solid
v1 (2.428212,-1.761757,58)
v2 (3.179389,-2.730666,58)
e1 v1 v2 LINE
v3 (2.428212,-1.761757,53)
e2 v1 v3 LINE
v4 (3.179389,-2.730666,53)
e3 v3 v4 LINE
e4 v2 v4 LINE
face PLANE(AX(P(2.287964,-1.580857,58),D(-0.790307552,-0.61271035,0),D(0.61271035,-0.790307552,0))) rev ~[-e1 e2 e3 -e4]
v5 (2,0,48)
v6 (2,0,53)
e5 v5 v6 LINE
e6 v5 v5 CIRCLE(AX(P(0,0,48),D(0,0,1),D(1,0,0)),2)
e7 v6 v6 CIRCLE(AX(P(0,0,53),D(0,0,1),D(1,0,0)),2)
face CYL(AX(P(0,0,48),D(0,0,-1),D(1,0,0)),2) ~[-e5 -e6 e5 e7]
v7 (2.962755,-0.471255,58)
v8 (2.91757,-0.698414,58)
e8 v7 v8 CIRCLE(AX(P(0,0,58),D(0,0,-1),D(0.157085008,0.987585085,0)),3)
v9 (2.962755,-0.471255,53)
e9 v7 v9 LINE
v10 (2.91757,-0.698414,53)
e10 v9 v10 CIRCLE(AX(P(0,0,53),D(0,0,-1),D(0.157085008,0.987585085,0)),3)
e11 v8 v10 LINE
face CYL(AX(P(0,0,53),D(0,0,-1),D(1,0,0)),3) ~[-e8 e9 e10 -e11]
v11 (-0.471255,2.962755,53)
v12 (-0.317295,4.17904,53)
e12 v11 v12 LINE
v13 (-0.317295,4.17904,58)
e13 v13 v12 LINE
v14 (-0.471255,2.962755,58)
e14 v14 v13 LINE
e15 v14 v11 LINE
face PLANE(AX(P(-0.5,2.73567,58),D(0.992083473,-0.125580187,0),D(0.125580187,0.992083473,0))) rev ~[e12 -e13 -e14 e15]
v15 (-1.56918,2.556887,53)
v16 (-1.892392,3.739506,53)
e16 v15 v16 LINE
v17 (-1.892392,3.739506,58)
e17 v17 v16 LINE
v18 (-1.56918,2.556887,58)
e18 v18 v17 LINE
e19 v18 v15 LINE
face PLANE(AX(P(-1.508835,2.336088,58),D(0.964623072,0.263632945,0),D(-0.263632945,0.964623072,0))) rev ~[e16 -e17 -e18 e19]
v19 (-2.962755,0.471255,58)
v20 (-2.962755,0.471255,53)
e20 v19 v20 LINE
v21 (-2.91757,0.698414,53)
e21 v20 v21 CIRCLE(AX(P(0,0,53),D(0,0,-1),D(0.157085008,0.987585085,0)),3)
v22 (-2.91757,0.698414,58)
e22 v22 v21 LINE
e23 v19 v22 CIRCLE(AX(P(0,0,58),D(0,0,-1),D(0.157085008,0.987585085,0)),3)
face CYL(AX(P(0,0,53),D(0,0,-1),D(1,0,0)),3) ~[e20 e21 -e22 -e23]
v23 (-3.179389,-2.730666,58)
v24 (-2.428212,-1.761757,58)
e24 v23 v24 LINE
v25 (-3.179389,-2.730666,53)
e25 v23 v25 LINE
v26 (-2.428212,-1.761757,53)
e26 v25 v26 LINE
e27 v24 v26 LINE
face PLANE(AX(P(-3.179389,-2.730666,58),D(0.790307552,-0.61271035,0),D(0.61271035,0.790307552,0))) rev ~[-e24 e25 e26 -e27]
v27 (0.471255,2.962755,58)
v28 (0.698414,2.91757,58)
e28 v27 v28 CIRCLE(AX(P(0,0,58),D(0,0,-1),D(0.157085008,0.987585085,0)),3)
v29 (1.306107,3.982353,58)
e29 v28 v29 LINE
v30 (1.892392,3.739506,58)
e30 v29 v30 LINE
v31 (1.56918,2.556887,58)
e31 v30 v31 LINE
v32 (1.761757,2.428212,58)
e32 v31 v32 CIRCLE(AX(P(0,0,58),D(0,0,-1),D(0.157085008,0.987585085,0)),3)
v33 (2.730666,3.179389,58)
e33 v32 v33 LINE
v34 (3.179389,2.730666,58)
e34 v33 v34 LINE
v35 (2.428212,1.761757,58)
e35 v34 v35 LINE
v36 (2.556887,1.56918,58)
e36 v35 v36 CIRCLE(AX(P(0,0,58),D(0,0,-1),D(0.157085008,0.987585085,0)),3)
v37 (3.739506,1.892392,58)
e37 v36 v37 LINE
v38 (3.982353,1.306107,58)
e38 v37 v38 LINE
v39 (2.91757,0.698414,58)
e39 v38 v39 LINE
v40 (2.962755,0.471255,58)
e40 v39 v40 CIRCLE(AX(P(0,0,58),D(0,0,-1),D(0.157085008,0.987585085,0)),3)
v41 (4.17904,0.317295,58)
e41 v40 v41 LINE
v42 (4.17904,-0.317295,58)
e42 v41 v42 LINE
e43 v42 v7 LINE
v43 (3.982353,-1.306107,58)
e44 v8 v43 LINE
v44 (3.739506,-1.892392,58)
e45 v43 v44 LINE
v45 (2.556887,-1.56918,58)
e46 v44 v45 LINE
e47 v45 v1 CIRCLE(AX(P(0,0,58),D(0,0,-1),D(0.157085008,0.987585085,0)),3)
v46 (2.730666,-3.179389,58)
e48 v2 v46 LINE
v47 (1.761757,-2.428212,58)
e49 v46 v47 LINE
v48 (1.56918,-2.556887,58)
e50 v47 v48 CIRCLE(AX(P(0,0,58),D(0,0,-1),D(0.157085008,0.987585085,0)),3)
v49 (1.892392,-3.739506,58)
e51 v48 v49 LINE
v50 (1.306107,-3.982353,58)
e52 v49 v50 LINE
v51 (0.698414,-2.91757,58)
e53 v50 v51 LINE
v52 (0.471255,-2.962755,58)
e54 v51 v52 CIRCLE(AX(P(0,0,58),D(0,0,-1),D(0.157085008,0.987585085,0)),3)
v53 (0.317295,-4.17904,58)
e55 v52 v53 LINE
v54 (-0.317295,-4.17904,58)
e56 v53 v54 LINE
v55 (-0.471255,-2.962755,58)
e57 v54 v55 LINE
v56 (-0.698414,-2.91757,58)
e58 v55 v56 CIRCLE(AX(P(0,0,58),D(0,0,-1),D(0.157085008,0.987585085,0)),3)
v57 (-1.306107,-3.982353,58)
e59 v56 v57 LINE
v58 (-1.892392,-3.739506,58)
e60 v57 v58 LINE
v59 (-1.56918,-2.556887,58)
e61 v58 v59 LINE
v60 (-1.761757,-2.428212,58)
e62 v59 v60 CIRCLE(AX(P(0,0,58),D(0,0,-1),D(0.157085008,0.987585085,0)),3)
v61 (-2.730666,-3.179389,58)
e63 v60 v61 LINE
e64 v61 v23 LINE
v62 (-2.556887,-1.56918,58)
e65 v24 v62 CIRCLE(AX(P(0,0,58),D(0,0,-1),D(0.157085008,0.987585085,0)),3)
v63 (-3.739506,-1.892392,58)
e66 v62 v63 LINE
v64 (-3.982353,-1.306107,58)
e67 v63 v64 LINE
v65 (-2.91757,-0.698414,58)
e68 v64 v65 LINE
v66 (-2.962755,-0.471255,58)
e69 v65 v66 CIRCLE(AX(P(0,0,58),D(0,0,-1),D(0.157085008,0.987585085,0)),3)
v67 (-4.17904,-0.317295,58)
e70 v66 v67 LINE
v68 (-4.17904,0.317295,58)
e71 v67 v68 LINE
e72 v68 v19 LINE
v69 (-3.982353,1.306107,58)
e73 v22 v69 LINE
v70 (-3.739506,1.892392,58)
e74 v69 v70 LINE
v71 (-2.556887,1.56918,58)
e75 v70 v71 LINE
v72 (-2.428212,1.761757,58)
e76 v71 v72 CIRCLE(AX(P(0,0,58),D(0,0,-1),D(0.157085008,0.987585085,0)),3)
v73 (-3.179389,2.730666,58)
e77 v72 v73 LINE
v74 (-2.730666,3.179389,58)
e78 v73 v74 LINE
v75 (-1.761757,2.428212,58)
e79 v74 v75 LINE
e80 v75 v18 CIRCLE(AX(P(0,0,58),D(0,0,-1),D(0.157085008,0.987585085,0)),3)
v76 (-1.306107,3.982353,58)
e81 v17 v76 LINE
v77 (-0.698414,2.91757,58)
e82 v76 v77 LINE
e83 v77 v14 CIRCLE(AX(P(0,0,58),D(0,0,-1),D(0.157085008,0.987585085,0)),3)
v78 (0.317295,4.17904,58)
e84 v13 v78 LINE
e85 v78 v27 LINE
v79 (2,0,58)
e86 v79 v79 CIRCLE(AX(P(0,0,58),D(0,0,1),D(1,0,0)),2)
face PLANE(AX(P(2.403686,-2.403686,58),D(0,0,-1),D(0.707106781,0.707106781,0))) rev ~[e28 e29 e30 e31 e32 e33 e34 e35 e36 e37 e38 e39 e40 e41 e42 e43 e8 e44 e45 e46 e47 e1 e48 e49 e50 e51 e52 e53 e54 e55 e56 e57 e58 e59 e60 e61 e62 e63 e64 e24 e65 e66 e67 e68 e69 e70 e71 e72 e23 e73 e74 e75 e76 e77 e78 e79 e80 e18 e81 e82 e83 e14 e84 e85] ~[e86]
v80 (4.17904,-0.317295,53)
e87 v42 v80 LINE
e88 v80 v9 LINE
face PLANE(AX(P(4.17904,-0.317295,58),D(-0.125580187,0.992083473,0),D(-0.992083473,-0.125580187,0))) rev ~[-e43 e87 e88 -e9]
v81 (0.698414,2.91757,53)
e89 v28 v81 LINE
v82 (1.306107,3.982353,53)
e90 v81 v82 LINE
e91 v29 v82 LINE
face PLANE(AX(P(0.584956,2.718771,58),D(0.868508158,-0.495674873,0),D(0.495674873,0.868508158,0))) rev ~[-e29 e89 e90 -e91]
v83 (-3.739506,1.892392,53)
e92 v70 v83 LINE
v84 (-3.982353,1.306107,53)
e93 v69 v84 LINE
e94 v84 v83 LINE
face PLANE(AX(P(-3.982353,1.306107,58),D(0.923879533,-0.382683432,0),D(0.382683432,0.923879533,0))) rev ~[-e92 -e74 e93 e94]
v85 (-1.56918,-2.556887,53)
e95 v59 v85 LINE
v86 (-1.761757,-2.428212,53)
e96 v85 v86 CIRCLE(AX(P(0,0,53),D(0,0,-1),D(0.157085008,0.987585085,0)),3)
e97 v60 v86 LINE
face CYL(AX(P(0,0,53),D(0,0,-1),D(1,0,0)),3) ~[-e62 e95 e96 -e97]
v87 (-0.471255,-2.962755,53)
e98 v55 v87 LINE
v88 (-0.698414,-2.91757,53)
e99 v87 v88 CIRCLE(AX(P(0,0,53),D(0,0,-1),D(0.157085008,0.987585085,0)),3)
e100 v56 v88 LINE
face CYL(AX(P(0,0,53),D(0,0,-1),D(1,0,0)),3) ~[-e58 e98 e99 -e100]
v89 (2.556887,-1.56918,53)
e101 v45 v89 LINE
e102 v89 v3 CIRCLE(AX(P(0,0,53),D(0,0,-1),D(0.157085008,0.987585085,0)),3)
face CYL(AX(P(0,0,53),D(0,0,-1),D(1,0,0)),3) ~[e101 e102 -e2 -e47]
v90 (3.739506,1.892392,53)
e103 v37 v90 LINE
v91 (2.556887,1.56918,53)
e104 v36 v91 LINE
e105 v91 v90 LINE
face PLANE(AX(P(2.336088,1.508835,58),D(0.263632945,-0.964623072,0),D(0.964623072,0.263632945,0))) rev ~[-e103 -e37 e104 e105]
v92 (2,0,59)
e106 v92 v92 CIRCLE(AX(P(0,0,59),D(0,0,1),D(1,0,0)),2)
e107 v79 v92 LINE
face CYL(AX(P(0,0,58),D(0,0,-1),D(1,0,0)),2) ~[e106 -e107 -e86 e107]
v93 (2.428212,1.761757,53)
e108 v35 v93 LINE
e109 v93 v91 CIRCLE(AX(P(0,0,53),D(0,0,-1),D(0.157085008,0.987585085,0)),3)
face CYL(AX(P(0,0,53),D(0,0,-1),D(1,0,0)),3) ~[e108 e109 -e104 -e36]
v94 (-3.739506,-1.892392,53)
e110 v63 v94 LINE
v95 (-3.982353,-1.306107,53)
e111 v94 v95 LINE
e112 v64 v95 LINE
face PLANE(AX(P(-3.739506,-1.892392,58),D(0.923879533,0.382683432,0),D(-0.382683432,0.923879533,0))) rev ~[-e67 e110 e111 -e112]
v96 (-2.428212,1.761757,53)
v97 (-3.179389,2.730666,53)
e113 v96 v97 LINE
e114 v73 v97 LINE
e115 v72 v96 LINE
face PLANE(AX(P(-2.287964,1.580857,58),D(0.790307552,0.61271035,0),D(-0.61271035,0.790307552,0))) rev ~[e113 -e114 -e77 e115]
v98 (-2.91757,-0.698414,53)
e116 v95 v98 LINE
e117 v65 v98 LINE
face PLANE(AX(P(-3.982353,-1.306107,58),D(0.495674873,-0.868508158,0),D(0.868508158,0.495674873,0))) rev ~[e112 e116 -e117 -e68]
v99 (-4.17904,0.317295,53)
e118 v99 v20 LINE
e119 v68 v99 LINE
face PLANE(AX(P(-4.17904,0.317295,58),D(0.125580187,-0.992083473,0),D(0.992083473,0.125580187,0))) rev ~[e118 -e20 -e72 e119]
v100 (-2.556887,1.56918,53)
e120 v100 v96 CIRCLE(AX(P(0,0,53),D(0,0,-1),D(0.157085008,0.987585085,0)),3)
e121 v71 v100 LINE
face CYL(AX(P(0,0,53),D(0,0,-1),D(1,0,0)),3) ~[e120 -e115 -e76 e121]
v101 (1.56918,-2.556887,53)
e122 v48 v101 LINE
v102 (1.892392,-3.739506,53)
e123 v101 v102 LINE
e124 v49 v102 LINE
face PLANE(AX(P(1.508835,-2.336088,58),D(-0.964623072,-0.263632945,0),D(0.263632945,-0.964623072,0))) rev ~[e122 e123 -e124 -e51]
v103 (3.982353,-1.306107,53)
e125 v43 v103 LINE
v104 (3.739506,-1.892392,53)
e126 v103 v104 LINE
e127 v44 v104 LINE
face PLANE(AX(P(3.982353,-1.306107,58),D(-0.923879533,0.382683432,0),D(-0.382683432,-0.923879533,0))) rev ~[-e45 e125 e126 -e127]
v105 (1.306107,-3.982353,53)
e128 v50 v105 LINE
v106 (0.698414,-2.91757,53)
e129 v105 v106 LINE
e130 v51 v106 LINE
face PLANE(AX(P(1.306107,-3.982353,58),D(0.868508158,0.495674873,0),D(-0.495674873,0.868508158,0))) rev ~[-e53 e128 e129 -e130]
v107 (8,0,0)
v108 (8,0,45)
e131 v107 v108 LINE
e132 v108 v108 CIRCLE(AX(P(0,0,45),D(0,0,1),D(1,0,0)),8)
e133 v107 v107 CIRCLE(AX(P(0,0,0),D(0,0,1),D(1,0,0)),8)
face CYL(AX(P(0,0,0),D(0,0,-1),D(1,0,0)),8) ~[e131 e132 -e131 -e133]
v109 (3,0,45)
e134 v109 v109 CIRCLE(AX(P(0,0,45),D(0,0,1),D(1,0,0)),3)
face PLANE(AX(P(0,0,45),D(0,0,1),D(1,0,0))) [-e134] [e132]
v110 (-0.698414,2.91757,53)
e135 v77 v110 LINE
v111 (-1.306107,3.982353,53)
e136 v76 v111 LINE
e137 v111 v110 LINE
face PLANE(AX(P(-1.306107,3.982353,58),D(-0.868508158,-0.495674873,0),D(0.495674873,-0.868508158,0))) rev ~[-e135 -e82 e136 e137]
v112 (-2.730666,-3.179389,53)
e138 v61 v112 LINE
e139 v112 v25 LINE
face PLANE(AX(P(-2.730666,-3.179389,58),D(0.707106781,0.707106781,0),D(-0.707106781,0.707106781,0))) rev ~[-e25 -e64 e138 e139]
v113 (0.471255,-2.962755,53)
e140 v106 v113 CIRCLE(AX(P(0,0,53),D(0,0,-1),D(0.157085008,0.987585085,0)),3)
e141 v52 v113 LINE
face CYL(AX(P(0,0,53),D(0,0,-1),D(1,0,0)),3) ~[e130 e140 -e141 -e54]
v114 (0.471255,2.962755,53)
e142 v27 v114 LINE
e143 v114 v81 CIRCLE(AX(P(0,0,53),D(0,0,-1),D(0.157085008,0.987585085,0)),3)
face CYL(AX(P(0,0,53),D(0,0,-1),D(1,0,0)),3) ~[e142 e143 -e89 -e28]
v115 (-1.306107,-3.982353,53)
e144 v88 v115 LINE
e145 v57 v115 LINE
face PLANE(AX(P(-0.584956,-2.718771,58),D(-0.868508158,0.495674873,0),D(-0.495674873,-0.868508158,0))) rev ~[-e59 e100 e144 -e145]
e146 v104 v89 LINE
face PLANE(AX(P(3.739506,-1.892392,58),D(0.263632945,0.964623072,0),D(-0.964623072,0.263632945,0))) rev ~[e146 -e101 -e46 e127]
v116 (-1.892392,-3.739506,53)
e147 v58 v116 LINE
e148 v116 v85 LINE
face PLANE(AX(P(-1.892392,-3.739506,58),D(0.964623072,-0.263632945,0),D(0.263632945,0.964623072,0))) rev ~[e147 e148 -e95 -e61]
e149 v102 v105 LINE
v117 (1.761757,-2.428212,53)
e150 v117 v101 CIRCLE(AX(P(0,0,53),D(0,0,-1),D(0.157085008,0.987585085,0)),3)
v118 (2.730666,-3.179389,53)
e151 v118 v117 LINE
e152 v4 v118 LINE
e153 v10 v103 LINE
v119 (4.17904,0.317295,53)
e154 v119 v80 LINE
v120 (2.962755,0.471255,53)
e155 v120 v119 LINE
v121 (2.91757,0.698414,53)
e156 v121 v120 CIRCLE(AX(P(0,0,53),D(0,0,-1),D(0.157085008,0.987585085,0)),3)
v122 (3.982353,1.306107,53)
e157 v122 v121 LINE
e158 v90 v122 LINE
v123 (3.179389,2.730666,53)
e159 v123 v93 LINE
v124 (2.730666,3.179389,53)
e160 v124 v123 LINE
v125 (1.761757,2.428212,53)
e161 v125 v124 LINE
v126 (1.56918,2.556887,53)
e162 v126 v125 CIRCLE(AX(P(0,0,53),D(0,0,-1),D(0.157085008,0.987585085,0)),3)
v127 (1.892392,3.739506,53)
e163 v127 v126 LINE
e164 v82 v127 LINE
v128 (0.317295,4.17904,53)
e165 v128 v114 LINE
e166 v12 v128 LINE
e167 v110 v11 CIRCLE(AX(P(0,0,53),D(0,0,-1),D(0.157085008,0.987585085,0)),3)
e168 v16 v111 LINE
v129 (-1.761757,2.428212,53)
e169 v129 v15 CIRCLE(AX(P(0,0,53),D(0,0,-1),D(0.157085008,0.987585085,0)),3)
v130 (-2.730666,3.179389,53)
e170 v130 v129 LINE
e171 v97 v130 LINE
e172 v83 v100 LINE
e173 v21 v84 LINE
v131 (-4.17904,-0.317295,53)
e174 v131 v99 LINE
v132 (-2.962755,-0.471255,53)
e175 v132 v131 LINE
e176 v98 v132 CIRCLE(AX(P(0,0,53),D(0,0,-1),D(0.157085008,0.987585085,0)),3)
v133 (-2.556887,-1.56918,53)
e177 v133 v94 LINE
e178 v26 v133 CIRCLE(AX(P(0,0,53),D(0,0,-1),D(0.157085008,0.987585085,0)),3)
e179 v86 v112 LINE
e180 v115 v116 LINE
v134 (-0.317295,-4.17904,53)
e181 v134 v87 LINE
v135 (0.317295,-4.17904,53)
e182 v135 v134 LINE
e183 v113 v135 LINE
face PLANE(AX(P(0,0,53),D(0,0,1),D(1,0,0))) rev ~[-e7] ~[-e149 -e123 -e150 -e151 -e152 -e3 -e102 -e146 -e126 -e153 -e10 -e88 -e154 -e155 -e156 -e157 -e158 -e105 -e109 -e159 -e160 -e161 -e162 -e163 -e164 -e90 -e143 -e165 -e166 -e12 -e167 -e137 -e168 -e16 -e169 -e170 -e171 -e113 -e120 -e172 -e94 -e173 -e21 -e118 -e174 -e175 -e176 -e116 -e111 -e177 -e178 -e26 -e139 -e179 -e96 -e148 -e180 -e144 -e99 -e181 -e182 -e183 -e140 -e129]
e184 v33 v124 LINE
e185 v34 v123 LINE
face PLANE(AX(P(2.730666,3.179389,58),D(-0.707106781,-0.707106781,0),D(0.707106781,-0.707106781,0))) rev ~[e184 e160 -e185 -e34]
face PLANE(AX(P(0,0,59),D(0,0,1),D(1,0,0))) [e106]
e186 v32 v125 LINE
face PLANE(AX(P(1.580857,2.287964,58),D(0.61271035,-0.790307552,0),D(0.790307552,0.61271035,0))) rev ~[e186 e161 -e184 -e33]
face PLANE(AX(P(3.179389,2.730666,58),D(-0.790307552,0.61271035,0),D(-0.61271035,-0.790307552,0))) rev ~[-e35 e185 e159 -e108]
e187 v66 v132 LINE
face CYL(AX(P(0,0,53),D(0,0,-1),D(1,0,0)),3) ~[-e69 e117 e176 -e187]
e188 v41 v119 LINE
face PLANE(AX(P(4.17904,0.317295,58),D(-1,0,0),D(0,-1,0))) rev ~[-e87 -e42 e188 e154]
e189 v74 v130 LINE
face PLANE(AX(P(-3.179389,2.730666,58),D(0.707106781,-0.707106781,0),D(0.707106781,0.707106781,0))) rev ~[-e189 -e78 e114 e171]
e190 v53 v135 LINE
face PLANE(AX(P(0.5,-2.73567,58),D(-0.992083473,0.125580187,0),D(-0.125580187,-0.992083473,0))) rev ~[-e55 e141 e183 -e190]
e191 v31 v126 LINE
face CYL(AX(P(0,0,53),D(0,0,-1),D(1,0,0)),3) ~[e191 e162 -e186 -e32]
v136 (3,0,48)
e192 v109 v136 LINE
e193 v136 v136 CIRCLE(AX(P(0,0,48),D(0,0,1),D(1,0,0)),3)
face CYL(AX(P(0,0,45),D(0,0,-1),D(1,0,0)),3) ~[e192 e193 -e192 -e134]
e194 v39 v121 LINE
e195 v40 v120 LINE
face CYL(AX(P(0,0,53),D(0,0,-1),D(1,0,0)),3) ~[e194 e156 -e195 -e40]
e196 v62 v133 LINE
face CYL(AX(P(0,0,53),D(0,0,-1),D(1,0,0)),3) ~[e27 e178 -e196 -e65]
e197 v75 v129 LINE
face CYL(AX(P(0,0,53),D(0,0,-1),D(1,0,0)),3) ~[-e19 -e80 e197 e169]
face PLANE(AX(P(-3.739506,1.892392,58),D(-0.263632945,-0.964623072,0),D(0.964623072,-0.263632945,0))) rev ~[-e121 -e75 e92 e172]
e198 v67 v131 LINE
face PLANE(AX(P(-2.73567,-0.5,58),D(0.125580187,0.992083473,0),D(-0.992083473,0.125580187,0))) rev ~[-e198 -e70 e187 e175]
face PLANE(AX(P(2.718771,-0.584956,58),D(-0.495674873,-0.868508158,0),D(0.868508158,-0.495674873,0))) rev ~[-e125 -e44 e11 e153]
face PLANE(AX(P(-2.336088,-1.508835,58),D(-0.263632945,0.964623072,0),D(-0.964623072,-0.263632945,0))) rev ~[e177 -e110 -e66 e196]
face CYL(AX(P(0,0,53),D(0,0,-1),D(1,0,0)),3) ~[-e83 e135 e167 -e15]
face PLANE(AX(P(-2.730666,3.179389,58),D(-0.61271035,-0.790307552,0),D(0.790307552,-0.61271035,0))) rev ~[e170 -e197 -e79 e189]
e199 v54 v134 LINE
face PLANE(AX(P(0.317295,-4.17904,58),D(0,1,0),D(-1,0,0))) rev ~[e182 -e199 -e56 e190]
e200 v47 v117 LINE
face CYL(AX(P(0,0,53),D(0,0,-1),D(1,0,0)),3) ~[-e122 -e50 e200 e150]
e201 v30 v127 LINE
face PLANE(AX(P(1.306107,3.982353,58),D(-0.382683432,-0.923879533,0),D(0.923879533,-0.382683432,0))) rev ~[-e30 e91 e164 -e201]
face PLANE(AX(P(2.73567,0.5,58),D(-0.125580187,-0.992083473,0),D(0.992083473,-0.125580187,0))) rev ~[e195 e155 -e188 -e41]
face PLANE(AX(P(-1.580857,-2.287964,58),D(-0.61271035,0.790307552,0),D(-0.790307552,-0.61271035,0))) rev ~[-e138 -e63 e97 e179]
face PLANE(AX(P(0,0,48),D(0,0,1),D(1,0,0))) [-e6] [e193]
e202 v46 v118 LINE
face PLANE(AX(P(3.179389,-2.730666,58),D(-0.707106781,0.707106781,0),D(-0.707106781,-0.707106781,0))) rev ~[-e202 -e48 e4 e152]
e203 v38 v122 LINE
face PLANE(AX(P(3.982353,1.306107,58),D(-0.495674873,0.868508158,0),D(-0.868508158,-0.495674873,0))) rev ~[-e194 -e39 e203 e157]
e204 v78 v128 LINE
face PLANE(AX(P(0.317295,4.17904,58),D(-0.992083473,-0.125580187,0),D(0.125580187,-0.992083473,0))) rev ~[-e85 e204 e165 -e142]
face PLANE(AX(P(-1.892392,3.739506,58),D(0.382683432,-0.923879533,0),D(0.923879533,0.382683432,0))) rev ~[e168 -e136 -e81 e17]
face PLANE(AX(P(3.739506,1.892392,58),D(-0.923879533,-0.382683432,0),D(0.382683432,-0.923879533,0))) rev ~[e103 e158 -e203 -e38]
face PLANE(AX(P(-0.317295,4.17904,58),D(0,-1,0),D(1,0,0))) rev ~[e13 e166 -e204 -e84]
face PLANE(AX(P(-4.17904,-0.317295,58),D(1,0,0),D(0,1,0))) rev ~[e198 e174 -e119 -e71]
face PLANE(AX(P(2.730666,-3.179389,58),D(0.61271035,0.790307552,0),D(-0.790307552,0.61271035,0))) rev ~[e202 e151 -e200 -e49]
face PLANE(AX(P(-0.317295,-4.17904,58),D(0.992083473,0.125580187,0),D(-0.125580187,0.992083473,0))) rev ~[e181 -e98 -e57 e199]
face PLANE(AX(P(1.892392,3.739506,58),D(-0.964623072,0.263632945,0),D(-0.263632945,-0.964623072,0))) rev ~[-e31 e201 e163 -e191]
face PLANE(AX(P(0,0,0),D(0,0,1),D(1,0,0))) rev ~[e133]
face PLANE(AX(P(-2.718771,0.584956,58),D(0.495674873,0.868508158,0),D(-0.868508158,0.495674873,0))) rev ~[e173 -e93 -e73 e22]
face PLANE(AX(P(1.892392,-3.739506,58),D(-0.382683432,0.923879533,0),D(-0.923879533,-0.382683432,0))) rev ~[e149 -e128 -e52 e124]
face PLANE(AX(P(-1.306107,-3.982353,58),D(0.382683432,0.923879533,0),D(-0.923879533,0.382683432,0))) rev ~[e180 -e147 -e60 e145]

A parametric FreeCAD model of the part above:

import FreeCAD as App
import Part
import Sketcher

V = App.Vector
Q = App.Units.Quantity

doc = App.newDocument("Part")
body = doc.addObject("PartDesign::Body", "Body")

sketch1 = body.newObject("Sketcher::SketchObject", "Sketch")
sketch1.AttachmentSupport = (doc.getObject("XY_Plane"), [""])
sketch1.MapMode = "FlatFace"
sketch1.addGeometry(Part.Circle(V(0, 0, 0), V(0, 0, 1), 8), False)
sketch1.addConstraint([
    Sketcher.Constraint("Coincident", 0, 3, -1, 1),
    Sketcher.Constraint("Diameter", 0, Q("16 mm")),
])
pad1 = body.newObject("PartDesign::Pad", "Pad")
pad1.Profile = sketch1
pad1.Length = 45

sketch2 = body.newObject("Sketcher::SketchObject", "Sketch001")
sketch2.AttachmentSupport = (doc.getObject("XY_Plane"), [""])
sketch2.MapMode = "FlatFace"
sketch2.AttachmentOffset = App.Placement(V(0, 0, 45), App.Rotation())
sketch2.addGeometry(Part.Circle(V(0, 0, 0), V(0, 0, 1), 3), False)
sketch2.addConstraint([
    Sketcher.Constraint("Coincident", 0, 3, -1, 1),
    Sketcher.Constraint("Diameter", 0, Q("6 mm")),
])
pad2 = body.newObject("PartDesign::Pad", "Pad001")
pad2.Profile = sketch2
pad2.Length = 3

sketch3 = body.newObject("Sketcher::SketchObject", "Sketch002")
sketch3.AttachmentSupport = (doc.getObject("XY_Plane"), [""])
sketch3.MapMode = "FlatFace"
sketch3.AttachmentOffset = App.Placement(V(0, 0, 48), App.Rotation())
sketch3.addGeometry(Part.Circle(V(0, 0, 0), V(0, 0, 1), 2), False)
sketch3.addConstraint([
    Sketcher.Constraint("Coincident", 0, 3, -1, 1),
    Sketcher.Constraint("Diameter", 0, Q("4 mm")),
])
pad3 = body.newObject("PartDesign::Pad", "Pad002")
pad3.Profile = sketch3
pad3.Length = 5

sketch4 = body.newObject("Sketcher::SketchObject", "Sketch003")
sketch4.AttachmentSupport = (doc.getObject("XY_Plane"), [""])
sketch4.MapMode = "FlatFace"
sketch4.AttachmentOffset = App.Placement(V(0, 0, 53), App.Rotation())
sketch4.addGeometry(Part.Circle(V(0, 0, 0), V(0, 0, 1), 3), False)
sketch4.addConstraint([
    Sketcher.Constraint("Coincident", 0, 3, -1, 1),
    Sketcher.Constraint("Diameter", 0, Q("6 mm")),
])
pad4 = body.newObject("PartDesign::Pad", "Pad003")
pad4.Profile = sketch4
pad4.Length = 5

sketch5 = body.newObject("Sketcher::SketchObject", "Sketch004")
sketch5.AttachmentSupport = (doc.getObject("XY_Plane"), [""])
sketch5.MapMode = "FlatFace"
sketch5.AttachmentOffset = App.Placement(V(0, 0, 58), App.Rotation())
sketch5.addGeometry(Part.Circle(V(0, 0, 0), V(0, 0, 1), 2), False)
sketch5.addConstraint([
    Sketcher.Constraint("Coincident", 0, 3, -1, 1),
    Sketcher.Constraint("Diameter", 0, Q("4 mm")),
])
pad5 = body.newObject("PartDesign::Pad", "Pad004")
pad5.Profile = sketch5
pad5.Length = 1

sketch6 = body.newObject("Sketcher::SketchObject", "Sketch005")
sketch6.AttachmentSupport = (doc.getObject("XY_Plane"), [""])
sketch6.MapMode = "FlatFace"
sketch6.AttachmentOffset = App.Placement(V(0, 0, 58), App.Rotation())
sketch6.addGeometry([
    Part.LineSegment(V(-0.3, 4.2, 0), V(-0.5, 2.7, 0)),
    Part.LineSegment(V(-0.5, 2.7, 0), V(0.5, 2.7, 0)),
    Part.LineSegment(V(0.5, 2.7, 0), V(0.3, 4.2, 0)),
    Part.LineSegment(V(0.3, 4.2, 0), V(-0.3, 4.2, 0)),
], False)
sketch6.addConstraint([
    Sketcher.Constraint("Coincident", 0, 2, 1, 1),
    Sketcher.Constraint("Coincident", 1, 2, 2, 1),
    Sketcher.Constraint("Coincident", 2, 2, 3, 1),
    Sketcher.Constraint("Coincident", 3, 2, 0, 1),
    Sketcher.Constraint("Horizontal", 1),
    Sketcher.Constraint("Horizontal", 3),
    Sketcher.Constraint("Equal", 0, 2),
    Sketcher.Constraint("DistanceX", 1, 1, 1, 2, Q("1 mm")),
    Sketcher.Constraint("DistanceX", 0, 2, -1, 1, Q("0.5 mm")),
    Sketcher.Constraint("DistanceX", 3, 2, 3, 1, Q("0.63459 mm")),
    Sketcher.Constraint("DistanceY", -1, 1, 0, 2, Q("2.73567 mm")),
    Sketcher.Constraint("DistanceY", -1, 1, 2, 2, Q("4.17904 mm")),
])
pad6 = body.newObject("PartDesign::Pad", "Pad005")
pad6.Profile = sketch6
pad6.Length = 5
pad6.Reversed = True
doc.recompute()

polarpattern = body.newObject("PartDesign::PolarPattern", "PolarPattern")
polarpattern.Originals = [pad6]
polarpattern.Axis = (doc.getObject("Z_Axis"), [""])
polarpattern.Angle = 360
polarpattern.Occurrences = 16
body.Tip = polarpattern

doc.recompute()
